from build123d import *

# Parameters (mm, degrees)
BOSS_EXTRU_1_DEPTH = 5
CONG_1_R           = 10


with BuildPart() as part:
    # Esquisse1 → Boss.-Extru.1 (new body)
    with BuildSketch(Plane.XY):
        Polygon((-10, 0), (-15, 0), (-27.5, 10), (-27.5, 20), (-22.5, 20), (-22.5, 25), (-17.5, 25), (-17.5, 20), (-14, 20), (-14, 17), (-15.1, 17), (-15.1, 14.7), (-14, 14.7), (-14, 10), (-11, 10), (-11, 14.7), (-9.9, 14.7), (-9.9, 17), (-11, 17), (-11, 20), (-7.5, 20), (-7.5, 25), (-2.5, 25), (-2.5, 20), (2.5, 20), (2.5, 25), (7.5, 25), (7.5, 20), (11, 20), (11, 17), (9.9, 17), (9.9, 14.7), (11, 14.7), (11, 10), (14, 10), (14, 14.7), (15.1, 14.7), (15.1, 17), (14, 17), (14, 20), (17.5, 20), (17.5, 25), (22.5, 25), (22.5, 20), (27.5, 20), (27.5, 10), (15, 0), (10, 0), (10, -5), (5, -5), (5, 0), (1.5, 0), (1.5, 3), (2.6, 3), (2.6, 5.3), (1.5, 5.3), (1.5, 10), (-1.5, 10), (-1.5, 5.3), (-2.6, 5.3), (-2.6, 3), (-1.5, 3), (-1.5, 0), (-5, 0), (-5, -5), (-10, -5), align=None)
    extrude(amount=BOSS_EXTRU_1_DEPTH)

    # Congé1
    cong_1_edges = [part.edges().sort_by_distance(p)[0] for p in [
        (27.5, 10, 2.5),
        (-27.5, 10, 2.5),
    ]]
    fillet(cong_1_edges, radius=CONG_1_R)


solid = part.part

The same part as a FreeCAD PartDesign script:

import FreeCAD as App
import Part
import Sketcher


def edges_at(feature, points):
    """Names of the edges that pass closest to the given points."""
    edges = feature.Shape.Edges
    near = lambda p: min(range(len(edges)), key=lambda i: edges[i].distToShape(Part.Vertex(*p))[0])
    return sorted({f"Edge{near(p) + 1}" for p in points})

doc = App.newDocument("Part")
body = doc.addObject("PartDesign::Body", "Body")

sketch1 = body.newObject("Sketcher::SketchObject", "Sketch")
sketch1.AttachmentSupport = (doc.getObject("XY_Plane"), [""])
sketch1.MapMode = "FlatFace"
sketch1.addGeometry(Part.LineSegment(App.Vector(-15, 0, 0), App.Vector(-10, 0, 0)), False)
sketch1.addGeometry(Part.LineSegment(App.Vector(-10, 0, 0), App.Vector(-10, -5, 0)), False)
sketch1.addGeometry(Part.LineSegment(App.Vector(-10, -5, 0), App.Vector(-5, -5, 0)), False)
sketch1.addGeometry(Part.LineSegment(App.Vector(-5, -5, 0), App.Vector(-5, 0, 0)), False)
sketch1.addGeometry(Part.LineSegment(App.Vector(-5, 0, 0), App.Vector(-1.5, 0, 0)), False)
sketch1.addGeometry(Part.LineSegment(App.Vector(-1.5, 0, 0), App.Vector(-1.5, 3, 0)), False)
sketch1.addGeometry(Part.LineSegment(App.Vector(-1.5, 3, 0), App.Vector(-2.6, 3, 0)), False)
sketch1.addGeometry(Part.LineSegment(App.Vector(-2.6, 3, 0), App.Vector(-2.6, 5.3, 0)), False)
sketch1.addGeometry(Part.LineSegment(App.Vector(-2.6, 5.3, 0), App.Vector(-1.5, 5.3, 0)), False)
sketch1.addGeometry(Part.LineSegment(App.Vector(-1.5, 5.3, 0), App.Vector(-1.5, 10, 0)), False)
sketch1.addGeometry(Part.LineSegment(App.Vector(-1.5, 10, 0), App.Vector(1.5, 10, 0)), False)
sketch1.addGeometry(Part.LineSegment(App.Vector(1.5, 10, 0), App.Vector(1.5, 5.3, 0)), False)
sketch1.addGeometry(Part.LineSegment(App.Vector(1.5, 5.3, 0), App.Vector(2.6, 5.3, 0)), False)
sketch1.addGeometry(Part.LineSegment(App.Vector(2.6, 5.3, 0), App.Vector(2.6, 3, 0)), False)
sketch1.addGeometry(Part.LineSegment(App.Vector(2.6, 3, 0), App.Vector(1.5, 3, 0)), False)
sketch1.addGeometry(Part.LineSegment(App.Vector(1.5, 3, 0), App.Vector(1.5, 0, 0)), False)
sketch1.addGeometry(Part.LineSegment(App.Vector(1.5, 0, 0), App.Vector(5, 0, 0)), False)
sketch1.addGeometry(Part.LineSegment(App.Vector(5, 0, 0), App.Vector(5, -5, 0)), False)
sketch1.addGeometry(Part.LineSegment(App.Vector(5, -5, 0), App.Vector(10, -5, 0)), False)
sketch1.addGeometry(Part.LineSegment(App.Vector(10, -5, 0), App.Vector(10, 0, 0)), False)
sketch1.addGeometry(Part.LineSegment(App.Vector(10, 0, 0), App.Vector(15, 0, 0)), False)
sketch1.addGeometry(Part.LineSegment(App.Vector(15, 0, 0), App.Vector(27.5, 10, 0)), False)
sketch1.addGeometry(Part.LineSegment(App.Vector(27.5, 10, 0), App.Vector(27.5, 20, 0)), False)
sketch1.addGeometry(Part.LineSegment(App.Vector(27.5, 20, 0), App.Vector(22.5, 20, 0)), False)
sketch1.addGeometry(Part.LineSegment(App.Vector(22.5, 20, 0), App.Vector(22.5, 25, 0)), False)
sketch1.addGeometry(Part.LineSegment(App.Vector(22.5, 25, 0), App.Vector(17.5, 25, 0)), False)
sketch1.addGeometry(Part.LineSegment(App.Vector(17.5, 25, 0), App.Vector(17.5, 20, 0)), False)
sketch1.addGeometry(Part.LineSegment(App.Vector(17.5, 20, 0), App.Vector(14, 20, 0)), False)
sketch1.addGeometry(Part.LineSegment(App.Vector(14, 20, 0), App.Vector(14, 17, 0)), False)
sketch1.addGeometry(Part.LineSegment(App.Vector(14, 17, 0), App.Vector(15.1, 17, 0)), False)
sketch1.addGeometry(Part.LineSegment(App.Vector(15.1, 17, 0), App.Vector(15.1, 14.7, 0)), False)
sketch1.addGeometry(Part.LineSegment(App.Vector(15.1, 14.7, 0), App.Vector(14, 14.7, 0)), False)
sketch1.addGeometry(Part.LineSegment(App.Vector(14, 14.7, 0), App.Vector(14, 10, 0)), False)
sketch1.addGeometry(Part.LineSegment(App.Vector(14, 10, 0), App.Vector(11, 10, 0)), False)
sketch1.addGeometry(Part.LineSegment(App.Vector(11, 10, 0), App.Vector(11, 14.7, 0)), False)
sketch1.addGeometry(Part.LineSegment(App.Vector(11, 14.7, 0), App.Vector(9.9, 14.7, 0)), False)
sketch1.addGeometry(Part.LineSegment(App.Vector(9.9, 14.7, 0), App.Vector(9.9, 17, 0)), False)
sketch1.addGeometry(Part.LineSegment(App.Vector(9.9, 17, 0), App.Vector(11, 17, 0)), False)
sketch1.addGeometry(Part.LineSegment(App.Vector(11, 17, 0), App.Vector(11, 20, 0)), False)
sketch1.addGeometry(Part.LineSegment(App.Vector(11, 20, 0), App.Vector(7.5, 20, 0)), False)
sketch1.addGeometry(Part.LineSegment(App.Vector(7.5, 20, 0), App.Vector(7.5, 25, 0)), False)
sketch1.addGeometry(Part.LineSegment(App.Vector(7.5, 25, 0), App.Vector(2.5, 25, 0)), False)
sketch1.addGeometry(Part.LineSegment(App.Vector(2.5, 25, 0), App.Vector(2.5, 20, 0)), False)
sketch1.addGeometry(Part.LineSegment(App.Vector(2.5, 20, 0), App.Vector(-2.5, 20, 0)), False)
sketch1.addGeometry(Part.LineSegment(App.Vector(-2.5, 20, 0), App.Vector(-2.5, 25, 0)), False)
sketch1.addGeometry(Part.LineSegment(App.Vector(-2.5, 25, 0), App.Vector(-7.5, 25, 0)), False)
sketch1.addGeometry(Part.LineSegment(App.Vector(-7.5, 25, 0), App.Vector(-7.5, 20, 0)), False)
sketch1.addGeometry(Part.LineSegment(App.Vector(-7.5, 20, 0), App.Vector(-11, 20, 0)), False)
sketch1.addGeometry(Part.LineSegment(App.Vector(-11, 20, 0), App.Vector(-11, 17, 0)), False)
sketch1.addGeometry(Part.LineSegment(App.Vector(-11, 17, 0), App.Vector(-9.9, 17, 0)), False)
sketch1.addGeometry(Part.LineSegment(App.Vector(-9.9, 17, 0), App.Vector(-9.9, 14.7, 0)), False)
sketch1.addGeometry(Part.LineSegment(App.Vector(-9.9, 14.7, 0), App.Vector(-11, 14.7, 0)), False)
sketch1.addGeometry(Part.LineSegment(App.Vector(-11, 14.7, 0), App.Vector(-11, 10, 0)), False)
sketch1.addGeometry(Part.LineSegment(App.Vector(-11, 10, 0), App.Vector(-14, 10, 0)), False)
sketch1.addGeometry(Part.LineSegment(App.Vector(-14, 10, 0), App.Vector(-14, 14.7, 0)), False)
sketch1.addGeometry(Part.LineSegment(App.Vector(-14, 14.7, 0), App.Vector(-15.1, 14.7, 0)), False)
sketch1.addGeometry(Part.LineSegment(App.Vector(-15.1, 14.7, 0), App.Vector(-15.1, 17, 0)), False)
sketch1.addGeometry(Part.LineSegment(App.Vector(-15.1, 17, 0), App.Vector(-14, 17, 0)), False)
sketch1.addGeometry(Part.LineSegment(App.Vector(-14, 17, 0), App.Vector(-14, 20, 0)), False)
sketch1.addGeometry(Part.LineSegment(App.Vector(-14, 20, 0), App.Vector(-17.5, 20, 0)), False)
sketch1.addGeometry(Part.LineSegment(App.Vector(-17.5, 20, 0), App.Vector(-17.5, 25, 0)), False)
sketch1.addGeometry(Part.LineSegment(App.Vector(-17.5, 25, 0), App.Vector(-22.5, 25, 0)), False)
sketch1.addGeometry(Part.LineSegment(App.Vector(-22.5, 25, 0), App.Vector(-22.5, 20, 0)), False)
sketch1.addGeometry(Part.LineSegment(App.Vector(-22.5, 20, 0), App.Vector(-27.5, 20, 0)), False)
sketch1.addGeometry(Part.LineSegment(App.Vector(-27.5, 20, 0), App.Vector(-27.5, 10, 0)), False)
sketch1.addGeometry(Part.LineSegment(App.Vector(-27.5, 10, 0), App.Vector(-15, 0, 0)), False)
sketch1.addConstraint(Sketcher.Constraint("Coincident", 0, 2, 1, 1))
sketch1.addConstraint(Sketcher.Constraint("Coincident", 1, 2, 2, 1))
sketch1.addConstraint(Sketcher.Constraint("Coincident", 2, 2, 3, 1))
sketch1.addConstraint(Sketcher.Constraint("Coincident", 3, 2, 4, 1))
sketch1.addConstraint(Sketcher.Constraint("Coincident", 4, 2, 5, 1))
sketch1.addConstraint(Sketcher.Constraint("Coincident", 5, 2, 6, 1))
sketch1.addConstraint(Sketcher.Constraint("Coincident", 6, 2, 7, 1))
sketch1.addConstraint(Sketcher.Constraint("Coincident", 7, 2, 8, 1))
sketch1.addConstraint(Sketcher.Constraint("Coincident", 8, 2, 9, 1))
sketch1.addConstraint(Sketcher.Constraint("Coincident", 9, 2, 10, 1))
sketch1.addConstraint(Sketcher.Constraint("Coincident", 10, 2, 11, 1))
sketch1.addConstraint(Sketcher.Constraint("Coincident", 11, 2, 12, 1))
sketch1.addConstraint(Sketcher.Constraint("Coincident", 12, 2, 13, 1))
sketch1.addConstraint(Sketcher.Constraint("Coincident", 13, 2, 14, 1))
sketch1.addConstraint(Sketcher.Constraint("Coincident", 14, 2, 15, 1))
sketch1.addConstraint(Sketcher.Constraint("Coincident", 15, 2, 16, 1))
sketch1.addConstraint(Sketcher.Constraint("Coincident", 16, 2, 17, 1))
sketch1.addConstraint(Sketcher.Constraint("Coincident", 17, 2, 18, 1))
sketch1.addConstraint(Sketcher.Constraint("Coincident", 18, 2, 19, 1))
sketch1.addConstraint(Sketcher.Constraint("Coincident", 19, 2, 20, 1))
sketch1.addConstraint(Sketcher.Constraint("Coincident", 20, 2, 21, 1))
sketch1.addConstraint(Sketcher.Constraint("Coincident", 21, 2, 22, 1))
sketch1.addConstraint(Sketcher.Constraint("Coincident", 22, 2, 23, 1))
sketch1.addConstraint(Sketcher.Constraint("Coincident", 23, 2, 24, 1))
sketch1.addConstraint(Sketcher.Constraint("Coincident", 24, 2, 25, 1))
sketch1.addConstraint(Sketcher.Constraint("Coincident", 25, 2, 26, 1))
sketch1.addConstraint(Sketcher.Constraint("Coincident", 26, 2, 27, 1))
sketch1.addConstraint(Sketcher.Constraint("Coincident", 27, 2, 28, 1))
sketch1.addConstraint(Sketcher.Constraint("Coincident", 28, 2, 29, 1))
sketch1.addConstraint(Sketcher.Constraint("Coincident", 29, 2, 30, 1))
sketch1.addConstraint(Sketcher.Constraint("Coincident", 30, 2, 31, 1))
sketch1.addConstraint(Sketcher.Constraint("Coincident", 31, 2, 32, 1))
sketch1.addConstraint(Sketcher.Constraint("Coincident", 32, 2, 33, 1))
sketch1.addConstraint(Sketcher.Constraint("Coincident", 33, 2, 34, 1))
sketch1.addConstraint(Sketcher.Constraint("Coincident", 34, 2, 35, 1))
sketch1.addConstraint(Sketcher.Constraint("Coincident", 35, 2, 36, 1))
sketch1.addConstraint(Sketcher.Constraint("Coincident", 36, 2, 37, 1))
sketch1.addConstraint(Sketcher.Constraint("Coincident", 37, 2, 38, 1))
sketch1.addConstraint(Sketcher.Constraint("Coincident", 38, 2, 39, 1))
sketch1.addConstraint(Sketcher.Constraint("Coincident", 39, 2, 40, 1))
sketch1.addConstraint(Sketcher.Constraint("Coincident", 40, 2, 41, 1))
sketch1.addConstraint(Sketcher.Constraint("Coincident", 41, 2, 42, 1))
sketch1.addConstraint(Sketcher.Constraint("Coincident", 42, 2, 43, 1))
sketch1.addConstraint(Sketcher.Constraint("Coincident", 43, 2, 44, 1))
sketch1.addConstraint(Sketcher.Constraint("Coincident", 44, 2, 45, 1))
sketch1.addConstraint(Sketcher.Constraint("Coincident", 45, 2, 46, 1))
sketch1.addConstraint(Sketcher.Constraint("Coincident", 46, 2, 47, 1))
sketch1.addConstraint(Sketcher.Constraint("Coincident", 47, 2, 48, 1))
sketch1.addConstraint(Sketcher.Constraint("Coincident", 48, 2, 49, 1))
sketch1.addConstraint(Sketcher.Constraint("Coincident", 49, 2, 50, 1))
sketch1.addConstraint(Sketcher.Constraint("Coincident", 50, 2, 51, 1))
sketch1.addConstraint(Sketcher.Constraint("Coincident", 51, 2, 52, 1))
sketch1.addConstraint(Sketcher.Constraint("Coincident", 52, 2, 53, 1))
sketch1.addConstraint(Sketcher.Constraint("Coincident", 53, 2, 54, 1))
sketch1.addConstraint(Sketcher.Constraint("Coincident", 54, 2, 55, 1))
sketch1.addConstraint(Sketcher.Constraint("Coincident", 55, 2, 56, 1))
sketch1.addConstraint(Sketcher.Constraint("Coincident", 56, 2, 57, 1))
sketch1.addConstraint(Sketcher.Constraint("Coincident", 57, 2, 58, 1))
sketch1.addConstraint(Sketcher.Constraint("Coincident", 58, 2, 59, 1))
sketch1.addConstraint(Sketcher.Constraint("Coincident", 59, 2, 60, 1))
sketch1.addConstraint(Sketcher.Constraint("Coincident", 60, 2, 61, 1))
sketch1.addConstraint(Sketcher.Constraint("Coincident", 61, 2, 62, 1))
sketch1.addConstraint(Sketcher.Constraint("Coincident", 62, 2, 63, 1))
sketch1.addConstraint(Sketcher.Constraint("Coincident", 63, 2, 64, 1))
sketch1.addConstraint(Sketcher.Constraint("Coincident", 64, 2, 65, 1))
sketch1.addConstraint(Sketcher.Constraint("Coincident", 65, 2, 0, 1))
sketch1.addConstraint(Sketcher.Constraint("Horizontal", 0))
sketch1.addConstraint(Sketcher.Constraint("Vertical", 1))
sketch1.addConstraint(Sketcher.Constraint("Horizontal", 2))
sketch1.addConstraint(Sketcher.Constraint("Vertical", 3))
sketch1.addConstraint(Sketcher.Constraint("Horizontal", 4))
sketch1.addConstraint(Sketcher.Constraint("Vertical", 5))
sketch1.addConstraint(Sketcher.Constraint("Horizontal", 6))
sketch1.addConstraint(Sketcher.Constraint("Vertical", 7))
sketch1.addConstraint(Sketcher.Constraint("Horizontal", 8))
sketch1.addConstraint(Sketcher.Constraint("Vertical", 9))
sketch1.addConstraint(Sketcher.Constraint("Horizontal", 10))
sketch1.addConstraint(Sketcher.Constraint("Vertical", 11))
sketch1.addConstraint(Sketcher.Constraint("Horizontal", 12))
sketch1.addConstraint(Sketcher.Constraint("Vertical", 13))
sketch1.addConstraint(Sketcher.Constraint("Horizontal", 14))
sketch1.addConstraint(Sketcher.Constraint("Vertical", 15))
sketch1.addConstraint(Sketcher.Constraint("Horizontal", 16))
sketch1.addConstraint(Sketcher.Constraint("Vertical", 17))
sketch1.addConstraint(Sketcher.Constraint("Horizontal", 18))
sketch1.addConstraint(Sketcher.Constraint("Vertical", 19))
sketch1.addConstraint(Sketcher.Constraint("Horizontal", 20))
sketch1.addConstraint(Sketcher.Constraint("Vertical", 22))
sketch1.addConstraint(Sketcher.Constraint("Horizontal", 23))
sketch1.addConstraint(Sketcher.Constraint("Vertical", 24))
sketch1.addConstraint(Sketcher.Constraint("Horizontal", 25))
sketch1.addConstraint(Sketcher.Constraint("Vertical", 26))
sketch1.addConstraint(Sketcher.Constraint("Horizontal", 27))
sketch1.addConstraint(Sketcher.Constraint("Vertical", 28))
sketch1.addConstraint(Sketcher.Constraint("Horizontal", 29))
sketch1.addConstraint(Sketcher.Constraint("Vertical", 30))
sketch1.addConstraint(Sketcher.Constraint("Horizontal", 31))
sketch1.addConstraint(Sketcher.Constraint("Vertical", 32))
sketch1.addConstraint(Sketcher.Constraint("Horizontal", 33))
sketch1.addConstraint(Sketcher.Constraint("Vertical", 34))
sketch1.addConstraint(Sketcher.Constraint("Horizontal", 35))
sketch1.addConstraint(Sketcher.Constraint("Vertical", 36))
sketch1.addConstraint(Sketcher.Constraint("Horizontal", 37))
sketch1.addConstraint(Sketcher.Constraint("Vertical", 38))
sketch1.addConstraint(Sketcher.Constraint("Horizontal", 39))
sketch1.addConstraint(Sketcher.Constraint("Vertical", 40))
sketch1.addConstraint(Sketcher.Constraint("Horizontal", 41))
sketch1.addConstraint(Sketcher.Constraint("Vertical", 42))
sketch1.addConstraint(Sketcher.Constraint("Horizontal", 43))
sketch1.addConstraint(Sketcher.Constraint("Vertical", 44))
sketch1.addConstraint(Sketcher.Constraint("Horizontal", 45))
sketch1.addConstraint(Sketcher.Constraint("Vertical", 46))
sketch1.addConstraint(Sketcher.Constraint("Horizontal", 47))
sketch1.addConstraint(Sketcher.Constraint("Vertical", 48))
sketch1.addConstraint(Sketcher.Constraint("Horizontal", 49))
sketch1.addConstraint(Sketcher.Constraint("Vertical", 50))
sketch1.addConstraint(Sketcher.Constraint("Horizontal", 51))
sketch1.addConstraint(Sketcher.Constraint("Vertical", 52))
sketch1.addConstraint(Sketcher.Constraint("Horizontal", 53))
sketch1.addConstraint(Sketcher.Constraint("Vertical", 54))
sketch1.addConstraint(Sketcher.Constraint("Horizontal", 55))
sketch1.addConstraint(Sketcher.Constraint("Vertical", 56))
sketch1.addConstraint(Sketcher.Constraint("Horizontal", 57))
sketch1.addConstraint(Sketcher.Constraint("Vertical", 58))
sketch1.addConstraint(Sketcher.Constraint("Horizontal", 59))
sketch1.addConstraint(Sketcher.Constraint("Vertical", 60))
sketch1.addConstraint(Sketcher.Constraint("Horizontal", 61))
sketch1.addConstraint(Sketcher.Constraint("Vertical", 62))
sketch1.addConstraint(Sketcher.Constraint("Horizontal", 63))
sketch1.addConstraint(Sketcher.Constraint("Vertical", 64))
sketch1.addConstraint(Sketcher.Constraint("Symmetric", 4, 2, 15, 2, -1, 1))
sketch1.addConstraint(Sketcher.Constraint("Symmetric", 0, 2, 19, 2, -1, 1))
sketch1.addConstraint(Sketcher.Constraint("Symmetric", 8, 2, 11, 2, -2))
sketch1.addConstraint(Sketcher.Constraint("Symmetric", 6, 2, 13, 2, -2))
sketch1.addConstraint(Sketcher.Constraint("Symmetric", 3, 2, 16, 2, -2))
sketch1.addConstraint(Sketcher.Constraint("Symmetric", 41, 2, 44, 2, -2))
sketch1.addConstraint(Sketcher.Constraint("Symmetric", 39, 2, 46, 2, -2))
sketch1.addConstraint(Sketcher.Constraint("Symmetric", 37, 2, 48, 2, -2))
sketch1.addConstraint(Sketcher.Constraint("Symmetric", 35, 2, 50, 2, -2))
sketch1.addConstraint(Sketcher.Constraint("Symmetric", 33, 2, 52, 2, -2))
sketch1.addConstraint(Sketcher.Constraint("Symmetric", 31, 2, 54, 2, -2))
sketch1.addConstraint(Sketcher.Constraint("Symmetric", 29, 2, 56, 2, -2))
sketch1.addConstraint(Sketcher.Constraint("Symmetric", 27, 2, 58, 2, -2))
sketch1.addConstraint(Sketcher.Constraint("Symmetric", 25, 2, 60, 2, -2))
sketch1.addConstraint(Sketcher.Constraint("Symmetric", 23, 2, 62, 2, -2))
sketch1.addConstraint(Sketcher.Constraint("Symmetric", 21, 2, 64, 2, -2))
sketch1.addConstraint(Sketcher.Constraint("Symmetric", 20, 2, 65, 2, -2))
sketch1.addConstraint(Sketcher.Constraint("Horizontal", 2, 2, 17, 2))
sketch1.addConstraint(Sketcher.Constraint("Horizontal", 10, 2, 21, 2))
sketch1.addConstraint(Sketcher.Constraint("Horizontal", 23, 2, 26, 2))
sketch1.addConstraint(Sketcher.Constraint("Horizontal", 21, 2, 32, 2))
sketch1.addConstraint(Sketcher.Constraint("Horizontal", 31, 2, 34, 2))
sketch1.addConstraint(Sketcher.Constraint("Horizontal", 29, 2, 36, 2))
sketch1.addConstraint(Sketcher.Constraint("Horizontal", 27, 2, 38, 2))
sketch1.addConstraint(Sketcher.Constraint("Horizontal", 25, 2, 40, 2))
sketch1.addConstraint(Sketcher.Constraint("Horizontal", 39, 2, 42, 2))
sketch1.addConstraint(Sketcher.Constraint("Vertical", 5, 2, 8, 2))
sketch1.addConstraint(Sketcher.Constraint("Vertical", 28, 2, 31, 2))
sketch1.addConstraint(Sketcher.Constraint("Vertical", 34, 2, 37, 2))
sketch1.addConstraint(Sketcher.Constraint("Equal", 0, 2))
sketch1.addConstraint(Sketcher.Constraint("Equal", 20, 23))
sketch1.addConstraint(Sketcher.Constraint("Equal", 23, 25))
sketch1.addConstraint(Sketcher.Constraint("Equal", 16, 27))
sketch1.addConstraint(Sketcher.Constraint("Equal", 14, 29))
sketch1.addConstraint(Sketcher.Constraint("Equal", 10, 33))
sketch1.addConstraint(Sketcher.Constraint("Equal", 31, 35))
sketch1.addConstraint(Sketcher.Constraint("Equal", 27, 39))
sketch1.addConstraint(Sketcher.Constraint("Equal", 25, 41))
sketch1.addConstraint(Sketcher.Constraint("Equal", 41, 43))
sketch1.addConstraint(Sketcher.Constraint("Equal", 63, 1))
sketch1.addConstraint(Sketcher.Constraint("Equal", 53, 5))
sketch1.addConstraint(Sketcher.Constraint("Equal", 19, 24))
sketch1.addConstraint(Sketcher.Constraint("Equal", 15, 28))
sketch1.addConstraint(Sketcher.Constraint("Equal", 13, 30))
sketch1.addConstraint(Sketcher.Constraint("Equal", 11, 32))
sketch1.addConstraint(Sketcher.Constraint("DistanceX", 0, 1, 0, 2, 5.0))
sketch1.addConstraint(Sketcher.Constraint("DistanceX", 10, 1, 10, 2, 3.0))
sketch1.addConstraint(Sketcher.Constraint("DistanceY", 22, 1, 22, 2, 10.0))
sketch1.addConstraint(Sketcher.Constraint("DistanceX", 4, 1, 4, 2, 3.5))
sketch1.addConstraint(Sketcher.Constraint("DistanceX", 6, 2, 6, 1, 1.1))
sketch1.addConstraint(Sketcher.Constraint("DistanceY", 7, 1, 7, 2, 2.3))
pad1 = body.newObject("PartDesign::Pad", "Pad")
pad1.Profile = sketch1
pad1.Length = 5
doc.recompute()

fillet = body.newObject("PartDesign::Fillet", "Fillet")
fillet.Base = (pad1, edges_at(pad1, [(27.5, 10, 2.5), (-27.5, 10, 2.5)]))
fillet.Radius = 10

doc.recompute()
